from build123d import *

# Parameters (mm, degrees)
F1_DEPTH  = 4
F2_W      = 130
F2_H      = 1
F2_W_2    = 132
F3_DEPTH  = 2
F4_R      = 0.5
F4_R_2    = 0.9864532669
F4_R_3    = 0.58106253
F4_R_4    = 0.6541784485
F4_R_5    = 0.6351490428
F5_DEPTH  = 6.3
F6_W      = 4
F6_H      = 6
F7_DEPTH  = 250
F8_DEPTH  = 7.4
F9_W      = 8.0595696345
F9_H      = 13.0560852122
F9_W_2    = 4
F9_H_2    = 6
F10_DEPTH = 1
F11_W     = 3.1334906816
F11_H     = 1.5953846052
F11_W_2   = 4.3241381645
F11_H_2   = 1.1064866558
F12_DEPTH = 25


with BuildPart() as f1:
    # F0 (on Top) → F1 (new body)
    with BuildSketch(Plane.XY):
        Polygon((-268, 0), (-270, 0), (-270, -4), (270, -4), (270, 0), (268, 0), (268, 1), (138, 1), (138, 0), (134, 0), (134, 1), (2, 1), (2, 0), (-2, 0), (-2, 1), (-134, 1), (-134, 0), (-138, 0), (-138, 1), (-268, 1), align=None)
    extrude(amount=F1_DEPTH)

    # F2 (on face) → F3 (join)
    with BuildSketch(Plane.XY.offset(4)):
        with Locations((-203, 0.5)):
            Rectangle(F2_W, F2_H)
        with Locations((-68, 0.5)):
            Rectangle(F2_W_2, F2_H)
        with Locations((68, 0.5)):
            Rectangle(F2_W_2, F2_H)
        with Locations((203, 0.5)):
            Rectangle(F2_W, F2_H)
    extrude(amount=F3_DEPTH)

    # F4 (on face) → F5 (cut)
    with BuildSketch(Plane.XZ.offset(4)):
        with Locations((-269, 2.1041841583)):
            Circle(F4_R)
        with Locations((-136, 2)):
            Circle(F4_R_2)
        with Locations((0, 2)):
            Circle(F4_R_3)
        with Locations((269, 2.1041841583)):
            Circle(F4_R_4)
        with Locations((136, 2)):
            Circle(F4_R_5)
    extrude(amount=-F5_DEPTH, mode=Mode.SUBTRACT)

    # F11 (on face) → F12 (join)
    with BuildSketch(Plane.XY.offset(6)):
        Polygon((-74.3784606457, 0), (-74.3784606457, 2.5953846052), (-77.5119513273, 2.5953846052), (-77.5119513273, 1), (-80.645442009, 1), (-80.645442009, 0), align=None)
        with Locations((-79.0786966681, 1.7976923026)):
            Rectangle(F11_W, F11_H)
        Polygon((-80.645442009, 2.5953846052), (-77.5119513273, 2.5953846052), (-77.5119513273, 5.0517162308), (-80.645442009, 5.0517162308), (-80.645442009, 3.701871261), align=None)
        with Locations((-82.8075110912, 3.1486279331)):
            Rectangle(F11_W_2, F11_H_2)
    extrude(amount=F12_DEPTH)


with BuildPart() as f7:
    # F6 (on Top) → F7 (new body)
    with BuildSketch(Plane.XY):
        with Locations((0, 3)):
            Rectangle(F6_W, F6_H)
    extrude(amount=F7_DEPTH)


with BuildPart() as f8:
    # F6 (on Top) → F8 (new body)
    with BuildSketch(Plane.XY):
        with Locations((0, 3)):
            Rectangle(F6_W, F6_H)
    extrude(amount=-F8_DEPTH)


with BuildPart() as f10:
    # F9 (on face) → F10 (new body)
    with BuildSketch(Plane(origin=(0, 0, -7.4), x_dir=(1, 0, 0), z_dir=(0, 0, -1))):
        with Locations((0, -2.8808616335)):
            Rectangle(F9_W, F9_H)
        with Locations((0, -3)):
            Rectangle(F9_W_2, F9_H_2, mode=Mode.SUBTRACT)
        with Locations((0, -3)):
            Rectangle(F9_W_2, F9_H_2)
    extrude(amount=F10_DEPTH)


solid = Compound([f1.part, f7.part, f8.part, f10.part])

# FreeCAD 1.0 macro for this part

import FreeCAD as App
import Part
import Sketcher
Q = App.Units.Quantity

doc = App.newDocument("Part")
body = doc.addObject("PartDesign::Body", "Body")

sketch1 = body.newObject("Sketcher::SketchObject", "Sketch")
sketch1.AttachmentSupport = (doc.getObject("XY_Plane"), [""])
sketch1.MapMode = "FlatFace"
sketch1.addGeometry(Part.LineSegment(App.Vector(-268, 0, 0), App.Vector(-270, 0, 0)), False)
sketch1.addGeometry(Part.LineSegment(App.Vector(-270, 0, 0), App.Vector(-270, -4, 0)), False)
sketch1.addGeometry(Part.LineSegment(App.Vector(-270, -4, 0), App.Vector(270, -4, 0)), False)
sketch1.addGeometry(Part.LineSegment(App.Vector(270, -4, 0), App.Vector(270, 0, 0)), False)
sketch1.addGeometry(Part.LineSegment(App.Vector(270, 0, 0), App.Vector(268, 0, 0)), False)
sketch1.addGeometry(Part.LineSegment(App.Vector(268, 0, 0), App.Vector(268, 1, 0)), False)
sketch1.addGeometry(Part.LineSegment(App.Vector(268, 1, 0), App.Vector(138, 1, 0)), False)
sketch1.addGeometry(Part.LineSegment(App.Vector(138, 1, 0), App.Vector(138, 0, 0)), False)
sketch1.addGeometry(Part.LineSegment(App.Vector(138, 0, 0), App.Vector(134, 0, 0)), False)
sketch1.addGeometry(Part.LineSegment(App.Vector(134, 0, 0), App.Vector(134, 1, 0)), False)
sketch1.addGeometry(Part.LineSegment(App.Vector(134, 1, 0), App.Vector(2, 1, 0)), False)
sketch1.addGeometry(Part.LineSegment(App.Vector(2, 1, 0), App.Vector(2, 0, 0)), False)
sketch1.addGeometry(Part.LineSegment(App.Vector(2, 0, 0), App.Vector(-2, 0, 0)), False)
sketch1.addGeometry(Part.LineSegment(App.Vector(-2, 0, 0), App.Vector(-2, 1, 0)), False)
sketch1.addGeometry(Part.LineSegment(App.Vector(-2, 1, 0), App.Vector(-134, 1, 0)), False)
sketch1.addGeometry(Part.LineSegment(App.Vector(-134, 1, 0), App.Vector(-134, 0, 0)), False)
sketch1.addGeometry(Part.LineSegment(App.Vector(-134, 0, 0), App.Vector(-138, 0, 0)), False)
sketch1.addGeometry(Part.LineSegment(App.Vector(-138, 0, 0), App.Vector(-138, 1, 0)), False)
sketch1.addGeometry(Part.LineSegment(App.Vector(-138, 1, 0), App.Vector(-268, 1, 0)), False)
sketch1.addGeometry(Part.LineSegment(App.Vector(-268, 1, 0), App.Vector(-268, 0, 0)), False)
sketch1.addConstraint(Sketcher.Constraint("Coincident", 0, 2, 1, 1))
sketch1.addConstraint(Sketcher.Constraint("Coincident", 1, 2, 2, 1))
sketch1.addConstraint(Sketcher.Constraint("Coincident", 2, 2, 3, 1))
sketch1.addConstraint(Sketcher.Constraint("Coincident", 3, 2, 4, 1))
sketch1.addConstraint(Sketcher.Constraint("Coincident", 4, 2, 5, 1))
sketch1.addConstraint(Sketcher.Constraint("Coincident", 5, 2, 6, 1))
sketch1.addConstraint(Sketcher.Constraint("Coincident", 6, 2, 7, 1))
sketch1.addConstraint(Sketcher.Constraint("Coincident", 7, 2, 8, 1))
sketch1.addConstraint(Sketcher.Constraint("Coincident", 8, 2, 9, 1))
sketch1.addConstraint(Sketcher.Constraint("Coincident", 9, 2, 10, 1))
sketch1.addConstraint(Sketcher.Constraint("Coincident", 10, 2, 11, 1))
sketch1.addConstraint(Sketcher.Constraint("Coincident", 11, 2, 12, 1))
sketch1.addConstraint(Sketcher.Constraint("Coincident", 12, 2, 13, 1))
sketch1.addConstraint(Sketcher.Constraint("Coincident", 13, 2, 14, 1))
sketch1.addConstraint(Sketcher.Constraint("Coincident", 14, 2, 15, 1))
sketch1.addConstraint(Sketcher.Constraint("Coincident", 15, 2, 16, 1))
sketch1.addConstraint(Sketcher.Constraint("Coincident", 16, 2, 17, 1))
sketch1.addConstraint(Sketcher.Constraint("Coincident", 17, 2, 18, 1))
sketch1.addConstraint(Sketcher.Constraint("Coincident", 18, 2, 19, 1))
sketch1.addConstraint(Sketcher.Constraint("Coincident", 19, 2, 0, 1))
sketch1.addConstraint(Sketcher.Constraint("Horizontal", 0))
sketch1.addConstraint(Sketcher.Constraint("Vertical", 1))
sketch1.addConstraint(Sketcher.Constraint("Horizontal", 2))
sketch1.addConstraint(Sketcher.Constraint("Vertical", 3))
sketch1.addConstraint(Sketcher.Constraint("Horizontal", 4))
sketch1.addConstraint(Sketcher.Constraint("Vertical", 5))
sketch1.addConstraint(Sketcher.Constraint("Horizontal", 6))
sketch1.addConstraint(Sketcher.Constraint("Vertical", 7))
sketch1.addConstraint(Sketcher.Constraint("Horizontal", 8))
sketch1.addConstraint(Sketcher.Constraint("Vertical", 9))
sketch1.addConstraint(Sketcher.Constraint("Horizontal", 10))
sketch1.addConstraint(Sketcher.Constraint("Vertical", 11))
sketch1.addConstraint(Sketcher.Constraint("Horizontal", 12))
sketch1.addConstraint(Sketcher.Constraint("Vertical", 13))
sketch1.addConstraint(Sketcher.Constraint("Horizontal", 14))
sketch1.addConstraint(Sketcher.Constraint("Vertical", 15))
sketch1.addConstraint(Sketcher.Constraint("Horizontal", 16))
sketch1.addConstraint(Sketcher.Constraint("Vertical", 17))
sketch1.addConstraint(Sketcher.Constraint("Horizontal", 18))
sketch1.addConstraint(Sketcher.Constraint("Vertical", 19))
sketch1.addConstraint(Sketcher.Constraint("Symmetric", 0, 2, 3, 2, -1, 1))
sketch1.addConstraint(Sketcher.Constraint("Symmetric", 11, 2, 12, 2, -1, 1))
sketch1.addConstraint(Sketcher.Constraint("Symmetric", 8, 2, 15, 2, -1, 1))
sketch1.addConstraint(Sketcher.Constraint("Symmetric", 7, 2, 16, 2, -2))
sketch1.addConstraint(Sketcher.Constraint("Symmetric", 5, 2, 18, 2, -2))
sketch1.addConstraint(Sketcher.Constraint("PointOnObject", 0, 2, -1))
sketch1.addConstraint(Sketcher.Constraint("Horizontal", 6, 2, 9, 2))
sketch1.addConstraint(Sketcher.Constraint("Horizontal", 10, 2, 13, 2))
sketch1.addConstraint(Sketcher.Constraint("Equal", 8, 12))
sketch1.addConstraint(Sketcher.Constraint("Equal", 16, 1))
sketch1.addConstraint(Sketcher.Constraint("DistanceX", 0, 2, 0, 1, Q("2 mm")))
sketch1.addConstraint(Sketcher.Constraint("DistanceX", 2, 1, 2, 2, Q("540 mm")))
sketch1.addConstraint(Sketcher.Constraint("DistanceX", 6, 2, 6, 1, Q("130 mm")))
sketch1.addConstraint(Sketcher.Constraint("DistanceX", 8, 2, 8, 1, Q("4 mm")))
sketch1.addConstraint(Sketcher.Constraint("DistanceY", 5, 1, 5, 2, Q("1 mm")))
pad1 = body.newObject("PartDesign::Pad", "Pad")
pad1.Profile = sketch1
pad1.Length = 4

sketch2 = body.newObject("Sketcher::SketchObject", "Sketch001")
sketch2.AttachmentSupport = (doc.getObject("XY_Plane"), [""])
sketch2.MapMode = "FlatFace"
sketch2.AttachmentOffset = App.Placement(App.Vector(0, 0, 4), App.Rotation())
sketch2.addGeometry(Part.LineSegment(App.Vector(-268, 1, 0), App.Vector(-268, 0, 0)), False)
sketch2.addGeometry(Part.LineSegment(App.Vector(-268, 0, 0), App.Vector(-138, 0, 0)), False)
sketch2.addGeometry(Part.LineSegment(App.Vector(-138, 0, 0), App.Vector(-138, 1, 0)), False)
sketch2.addGeometry(Part.LineSegment(App.Vector(-138, 1, 0), App.Vector(-268, 1, 0)), False)
sketch2.addGeometry(Part.LineSegment(App.Vector(-134, 1, 0), App.Vector(-134, 0, 0)), False)
sketch2.addGeometry(Part.LineSegment(App.Vector(-134, 0, 0), App.Vector(-2, 0, 0)), False)
sketch2.addGeometry(Part.LineSegment(App.Vector(-2, 0, 0), App.Vector(-2, 1, 0)), False)
sketch2.addGeometry(Part.LineSegment(App.Vector(-2, 1, 0), App.Vector(-134, 1, 0)), False)
sketch2.addGeometry(Part.LineSegment(App.Vector(2, 1, 0), App.Vector(2, 0, 0)), False)
sketch2.addGeometry(Part.LineSegment(App.Vector(2, 0, 0), App.Vector(134, 0, 0)), False)
sketch2.addGeometry(Part.LineSegment(App.Vector(134, 0, 0), App.Vector(134, 1, 0)), False)
sketch2.addGeometry(Part.LineSegment(App.Vector(134, 1, 0), App.Vector(2, 1, 0)), False)
sketch2.addGeometry(Part.LineSegment(App.Vector(138, 1, 0), App.Vector(138, 0, 0)), False)
sketch2.addGeometry(Part.LineSegment(App.Vector(138, 0, 0), App.Vector(268, 0, 0)), False)
sketch2.addGeometry(Part.LineSegment(App.Vector(268, 0, 0), App.Vector(268, 1, 0)), False)
sketch2.addGeometry(Part.LineSegment(App.Vector(268, 1, 0), App.Vector(138, 1, 0)), False)
sketch2.addConstraint(Sketcher.Constraint("Coincident", 0, 2, 1, 1))
sketch2.addConstraint(Sketcher.Constraint("Coincident", 1, 2, 2, 1))
sketch2.addConstraint(Sketcher.Constraint("Coincident", 2, 2, 3, 1))
sketch2.addConstraint(Sketcher.Constraint("Coincident", 3, 2, 0, 1))
sketch2.addConstraint(Sketcher.Constraint("Coincident", 4, 2, 5, 1))
sketch2.addConstraint(Sketcher.Constraint("Coincident", 5, 2, 6, 1))
sketch2.addConstraint(Sketcher.Constraint("Coincident", 6, 2, 7, 1))
sketch2.addConstraint(Sketcher.Constraint("Coincident", 7, 2, 4, 1))
sketch2.addConstraint(Sketcher.Constraint("Coincident", 8, 2, 9, 1))
sketch2.addConstraint(Sketcher.Constraint("Coincident", 9, 2, 10, 1))
sketch2.addConstraint(Sketcher.Constraint("Coincident", 10, 2, 11, 1))
sketch2.addConstraint(Sketcher.Constraint("Coincident", 11, 2, 8, 1))
sketch2.addConstraint(Sketcher.Constraint("Coincident", 12, 2, 13, 1))
sketch2.addConstraint(Sketcher.Constraint("Coincident", 13, 2, 14, 1))
sketch2.addConstraint(Sketcher.Constraint("Coincident", 14, 2, 15, 1))
sketch2.addConstraint(Sketcher.Constraint("Coincident", 15, 2, 12, 1))
sketch2.addConstraint(Sketcher.Constraint("Vertical", 0))
sketch2.addConstraint(Sketcher.Constraint("Horizontal", 1))
sketch2.addConstraint(Sketcher.Constraint("Vertical", 2))
sketch2.addConstraint(Sketcher.Constraint("Horizontal", 3))
sketch2.addConstraint(Sketcher.Constraint("Vertical", 4))
sketch2.addConstraint(Sketcher.Constraint("Horizontal", 5))
sketch2.addConstraint(Sketcher.Constraint("Vertical", 6))
sketch2.addConstraint(Sketcher.Constraint("Horizontal", 7))
sketch2.addConstraint(Sketcher.Constraint("Vertical", 8))
sketch2.addConstraint(Sketcher.Constraint("Horizontal", 9))
sketch2.addConstraint(Sketcher.Constraint("Vertical", 10))
sketch2.addConstraint(Sketcher.Constraint("Horizontal", 11))
sketch2.addConstraint(Sketcher.Constraint("Vertical", 12))
sketch2.addConstraint(Sketcher.Constraint("Horizontal", 13))
sketch2.addConstraint(Sketcher.Constraint("Vertical", 14))
sketch2.addConstraint(Sketcher.Constraint("Horizontal", 15))
sketch2.addConstraint(Sketcher.Constraint("Symmetric", 5, 2, 8, 2, -1, 1))
sketch2.addConstraint(Sketcher.Constraint("Symmetric", 1, 2, 12, 2, -1, 1))
sketch2.addConstraint(Sketcher.Constraint("Symmetric", 4, 2, 9, 2, -2))
sketch2.addConstraint(Sketcher.Constraint("Symmetric", 0, 2, 13, 2, -2))
sketch2.addConstraint(Sketcher.Constraint("Horizontal", 3, 2, 6, 2))
sketch2.addConstraint(Sketcher.Constraint("Horizontal", 7, 2, 10, 2))
sketch2.addConstraint(Sketcher.Constraint("Horizontal", 11, 2, 14, 2))
sketch2.addConstraint(Sketcher.Constraint("DistanceX", 1, 1, 1, 2, Q("130 mm")))
sketch2.addConstraint(Sketcher.Constraint("DistanceX", 5, 1, 5, 2, Q("132 mm")))
sketch2.addConstraint(Sketcher.Constraint("DistanceY", 0, 2, 0, 1, Q("1 mm")))
sketch2.addConstraint(Sketcher.Constraint("DistanceX", 0, 2, -1, 1, Q("268 mm")))
sketch2.addConstraint(Sketcher.Constraint("DistanceX", 4, 2, -1, 1, Q("134 mm")))
pad2 = body.newObject("PartDesign::Pad", "Pad001")
pad2.Profile = sketch2
pad2.Length = 2

sketch3 = body.newObject("Sketcher::SketchObject", "Sketch002")
sketch3.AttachmentSupport = (doc.getObject("XZ_Plane"), [""])
sketch3.MapMode = "FlatFace"
sketch3.AttachmentOffset = App.Placement(App.Vector(0, 0, 4), App.Rotation())
sketch3.addGeometry(Part.Circle(App.Vector(-269, 2.104184, 0), App.Vector(0, 0, 1), 0.5), False)
sketch3.addGeometry(Part.Circle(App.Vector(-136, 2, 0), App.Vector(0, 0, 1), 0.986453), False)
sketch3.addGeometry(Part.Circle(App.Vector(0, 2, 0), App.Vector(0, 0, 1), 0.581063), False)
sketch3.addGeometry(Part.Circle(App.Vector(269, 2.104184, 0), App.Vector(0, 0, 1), 0.654178), False)
sketch3.addGeometry(Part.Circle(App.Vector(136, 2, 0), App.Vector(0, 0, 1), 0.635149), False)
sketch3.addConstraint(Sketcher.Constraint("Symmetric", 0, 3, 3, 3, -2))
sketch3.addConstraint(Sketcher.Constraint("Symmetric", 1, 3, 4, 3, -2))
sketch3.addConstraint(Sketcher.Constraint("PointOnObject", 2, 3, -2))
sketch3.addConstraint(Sketcher.Constraint("Horizontal", 1, 3, 2, 3))
sketch3.addConstraint(Sketcher.Constraint("Diameter", 0, Q("1 mm")))
sketch3.addConstraint(Sketcher.Constraint("DistanceX", 0, 3, -1, 1, Q("269 mm")))
sketch3.addConstraint(Sketcher.Constraint("DistanceX", 1, 3, -1, 1, Q("136 mm")))
sketch3.addConstraint(Sketcher.Constraint("DistanceY", -1, 1, 1, 3, Q("2 mm")))
sketch3.addConstraint(Sketcher.Constraint("Diameter", 4, Q("1.270298 mm")))
sketch3.addConstraint(Sketcher.Constraint("Diameter", 1, Q("1.972907 mm")))
sketch3.addConstraint(Sketcher.Constraint("Diameter", 2, Q("1.162125 mm")))
sketch3.addConstraint(Sketcher.Constraint("Diameter", 3, Q("1.308357 mm")))
sketch3.addConstraint(Sketcher.Constraint("DistanceY", -1, 1, 0, 3, Q("2.104184 mm")))
pocket1 = body.newObject("PartDesign::Pocket", "Pocket")
pocket1.Profile = sketch3
pocket1.Length = 6.3

sketch4 = body.newObject("Sketcher::SketchObject", "Sketch003")
sketch4.AttachmentSupport = (doc.getObject("XY_Plane"), [""])
sketch4.MapMode = "FlatFace"
sketch4.AttachmentOffset = App.Placement(App.Vector(0, 0, 6), App.Rotation())
sketch4.addGeometry(Part.LineSegment(App.Vector(-74.378461, 0, 0), App.Vector(-74.378461, 2.595385, 0)), False)
sketch4.addGeometry(Part.LineSegment(App.Vector(-74.378461, 2.595385, 0), App.Vector(-77.511951, 2.595385, 0)), False)
sketch4.addGeometry(Part.LineSegment(App.Vector(-77.511951, 2.595385, 0), App.Vector(-77.511951, 5.051716, 0)), False)
sketch4.addGeometry(Part.LineSegment(App.Vector(-77.511951, 5.051716, 0), App.Vector(-80.645442, 5.051716, 0)), False)
sketch4.addGeometry(Part.LineSegment(App.Vector(-80.645442, 5.051716, 0), App.Vector(-80.645442, 3.701871, 0)), False)
sketch4.addGeometry(Part.LineSegment(App.Vector(-80.645442, 3.701871, 0), App.Vector(-84.96958, 3.701871, 0)), False)
sketch4.addGeometry(Part.LineSegment(App.Vector(-84.96958, 3.701871, 0), App.Vector(-84.96958, 2.595385, 0)), False)
sketch4.addGeometry(Part.LineSegment(App.Vector(-84.96958, 2.595385, 0), App.Vector(-80.645442, 2.595385, 0)), False)
sketch4.addGeometry(Part.LineSegment(App.Vector(-80.645442, 2.595385, 0), App.Vector(-80.645442, 1, 0)), False)
sketch4.addGeometry(Part.LineSegment(App.Vector(-80.645442, 1, 0), App.Vector(-80.645442, 0, 0)), False)
sketch4.addGeometry(Part.LineSegment(App.Vector(-80.645442, 0, 0), App.Vector(-74.378461, 0, 0)), False)
sketch4.addConstraint(Sketcher.Constraint("Coincident", 0, 2, 1, 1))
sketch4.addConstraint(Sketcher.Constraint("Coincident", 1, 2, 2, 1))
sketch4.addConstraint(Sketcher.Constraint("Coincident", 2, 2, 3, 1))
sketch4.addConstraint(Sketcher.Constraint("Coincident", 3, 2, 4, 1))
sketch4.addConstraint(Sketcher.Constraint("Coincident", 4, 2, 5, 1))
sketch4.addConstraint(Sketcher.Constraint("Coincident", 5, 2, 6, 1))
sketch4.addConstraint(Sketcher.Constraint("Coincident", 6, 2, 7, 1))
sketch4.addConstraint(Sketcher.Constraint("Coincident", 7, 2, 8, 1))
sketch4.addConstraint(Sketcher.Constraint("Coincident", 8, 2, 9, 1))
sketch4.addConstraint(Sketcher.Constraint("Coincident", 9, 2, 10, 1))
sketch4.addConstraint(Sketcher.Constraint("Coincident", 10, 2, 0, 1))
sketch4.addConstraint(Sketcher.Constraint("Vertical", 0))
sketch4.addConstraint(Sketcher.Constraint("Horizontal", 1))
sketch4.addConstraint(Sketcher.Constraint("Vertical", 2))
sketch4.addConstraint(Sketcher.Constraint("Horizontal", 3))
sketch4.addConstraint(Sketcher.Constraint("Vertical", 4))
sketch4.addConstraint(Sketcher.Constraint("Horizontal", 5))
sketch4.addConstraint(Sketcher.Constraint("Vertical", 6))
sketch4.addConstraint(Sketcher.Constraint("Horizontal", 7))
sketch4.addConstraint(Sketcher.Constraint("Vertical", 8))
sketch4.addConstraint(Sketcher.Constraint("Vertical", 9))
sketch4.addConstraint(Sketcher.Constraint("Horizontal", 10))
sketch4.addConstraint(Sketcher.Constraint("PointOnObject", 9, 2, -1))
sketch4.addConstraint(Sketcher.Constraint("Horizontal", 1, 2, 6, 2))
sketch4.addConstraint(Sketcher.Constraint("Vertical", 4, 2, 7, 2))
sketch4.addConstraint(Sketcher.Constraint("Equal", 1, 3))
sketch4.addConstraint(Sketcher.Constraint("DistanceY", 9, 2, 9, 1, Q("1 mm")))
sketch4.addConstraint(Sketcher.Constraint("DistanceX", 1, 2, 1, 1, Q("3.133491 mm")))
sketch4.addConstraint(Sketcher.Constraint("DistanceX", 5, 2, 5, 1, Q("4.324138 mm")))
sketch4.addConstraint(Sketcher.Constraint("DistanceY", 2, 1, 2, 2, Q("2.456332 mm")))
sketch4.addConstraint(Sketcher.Constraint("DistanceY", 0, 1, 0, 2, Q("2.595385 mm")))
sketch4.addConstraint(Sketcher.Constraint("DistanceY", 4, 2, 4, 1, Q("1.349845 mm")))
sketch4.addConstraint(Sketcher.Constraint("DistanceX", 0, 2, -1, 1, Q("74.378461 mm")))
pad3 = body.newObject("PartDesign::Pad", "Pad002")
pad3.Profile = sketch4
pad3.Length = 25
body2 = doc.addObject("PartDesign::Body", "Body001")

sketch5 = body2.newObject("Sketcher::SketchObject", "Sketch004")
sketch5.AttachmentSupport = (doc.getObject("XY_Plane001"), [""])
sketch5.MapMode = "FlatFace"
sketch5.addGeometry(Part.LineSegment(App.Vector(-2, 6, 0), App.Vector(-2, 0, 0)), False)
sketch5.addGeometry(Part.LineSegment(App.Vector(-2, 0, 0), App.Vector(2, 0, 0)), False)
sketch5.addGeometry(Part.LineSegment(App.Vector(2, 0, 0), App.Vector(2, 6, 0)), False)
sketch5.addGeometry(Part.LineSegment(App.Vector(2, 6, 0), App.Vector(-2, 6, 0)), False)
sketch5.addConstraint(Sketcher.Constraint("Coincident", 0, 2, 1, 1))
sketch5.addConstraint(Sketcher.Constraint("Coincident", 1, 2, 2, 1))
sketch5.addConstraint(Sketcher.Constraint("Coincident", 2, 2, 3, 1))
sketch5.addConstraint(Sketcher.Constraint("Coincident", 3, 2, 0, 1))
sketch5.addConstraint(Sketcher.Constraint("Vertical", 0))
sketch5.addConstraint(Sketcher.Constraint("Horizontal", 1))
sketch5.addConstraint(Sketcher.Constraint("Vertical", 2))
sketch5.addConstraint(Sketcher.Constraint("Horizontal", 3))
sketch5.addConstraint(Sketcher.Constraint("Symmetric", 0, 2, 1, 2, -1, 1))
sketch5.addConstraint(Sketcher.Constraint("DistanceX", 1, 1, 1, 2, Q("4 mm")))
sketch5.addConstraint(Sketcher.Constraint("DistanceY", 0, 2, 0, 1, Q("6 mm")))
pad4 = body2.newObject("PartDesign::Pad", "Pad003")
pad4.Profile = sketch5
pad4.Length = 250
body3 = doc.addObject("PartDesign::Body", "Body002")

sketch6 = body3.newObject("Sketcher::SketchObject", "Sketch005")
sketch6.AttachmentSupport = (doc.getObject("XY_Plane002"), [""])
sketch6.MapMode = "FlatFace"
sketch6.addGeometry(Part.LineSegment(App.Vector(-2, 6, 0), App.Vector(-2, 0, 0)), False)
sketch6.addGeometry(Part.LineSegment(App.Vector(-2, 0, 0), App.Vector(2, 0, 0)), False)
sketch6.addGeometry(Part.LineSegment(App.Vector(2, 0, 0), App.Vector(2, 6, 0)), False)
sketch6.addGeometry(Part.LineSegment(App.Vector(2, 6, 0), App.Vector(-2, 6, 0)), False)
sketch6.addConstraint(Sketcher.Constraint("Coincident", 0, 2, 1, 1))
sketch6.addConstraint(Sketcher.Constraint("Coincident", 1, 2, 2, 1))
sketch6.addConstraint(Sketcher.Constraint("Coincident", 2, 2, 3, 1))
sketch6.addConstraint(Sketcher.Constraint("Coincident", 3, 2, 0, 1))
sketch6.addConstraint(Sketcher.Constraint("Vertical", 0))
sketch6.addConstraint(Sketcher.Constraint("Horizontal", 1))
sketch6.addConstraint(Sketcher.Constraint("Vertical", 2))
sketch6.addConstraint(Sketcher.Constraint("Horizontal", 3))
sketch6.addConstraint(Sketcher.Constraint("Symmetric", 0, 2, 1, 2, -1, 1))
sketch6.addConstraint(Sketcher.Constraint("DistanceX", 1, 1, 1, 2, Q("4 mm")))
sketch6.addConstraint(Sketcher.Constraint("DistanceY", 0, 2, 0, 1, Q("6 mm")))
pad5 = body3.newObject("PartDesign::Pad", "Pad004")
pad5.Profile = sketch6
pad5.Length = 7.4
pad5.Reversed = True
body4 = doc.addObject("PartDesign::Body", "Body003")

sketch7 = body4.newObject("Sketcher::SketchObject", "Sketch006")
sketch7.AttachmentSupport = (doc.getObject("XY_Plane003"), [""])
sketch7.MapMode = "FlatFace"
sketch7.AttachmentOffset = App.Placement(App.Vector(0, 0, -7.4), App.Rotation())
sketch7.addGeometry(Part.LineSegment(App.Vector(-4.029785, -3.647181, 0), App.Vector(-4.029785, 9.408904, 0)), False)
sketch7.addGeometry(Part.LineSegment(App.Vector(-4.029785, 9.408904, 0), App.Vector(4.029785, 9.408904, 0)), False)
sketch7.addGeometry(Part.LineSegment(App.Vector(4.029785, 9.408904, 0), App.Vector(4.029785, -3.647181, 0)), False)
sketch7.addGeometry(Part.LineSegment(App.Vector(4.029785, -3.647181, 0), App.Vector(-4.029785, -3.647181, 0)), False)
sketch7.addConstraint(Sketcher.Constraint("Coincident", 0, 2, 1, 1))
sketch7.addConstraint(Sketcher.Constraint("Coincident", 1, 2, 2, 1))
sketch7.addConstraint(Sketcher.Constraint("Coincident", 2, 2, 3, 1))
sketch7.addConstraint(Sketcher.Constraint("Coincident", 3, 2, 0, 1))
sketch7.addConstraint(Sketcher.Constraint("Vertical", 0))
sketch7.addConstraint(Sketcher.Constraint("Horizontal", 1))
sketch7.addConstraint(Sketcher.Constraint("Vertical", 2))
sketch7.addConstraint(Sketcher.Constraint("Horizontal", 3))
sketch7.addConstraint(Sketcher.Constraint("DistanceX", 1, 1, 1, 2, Q("8.05957 mm")))
sketch7.addConstraint(Sketcher.Constraint("DistanceY", 0, 1, 0, 2, Q("13.056085 mm")))
sketch7.addConstraint(Sketcher.Constraint("DistanceY", 2, 2, -1, 1, Q("3.647181 mm")))
sketch7.addConstraint(Sketcher.Constraint("DistanceX", 0, 2, -1, 1, Q("4.029785 mm")))
pad6 = body4.newObject("PartDesign::Pad", "Pad005")
pad6.Profile = sketch7
pad6.Length = 1
pad6.Reversed = True

doc.recompute()
